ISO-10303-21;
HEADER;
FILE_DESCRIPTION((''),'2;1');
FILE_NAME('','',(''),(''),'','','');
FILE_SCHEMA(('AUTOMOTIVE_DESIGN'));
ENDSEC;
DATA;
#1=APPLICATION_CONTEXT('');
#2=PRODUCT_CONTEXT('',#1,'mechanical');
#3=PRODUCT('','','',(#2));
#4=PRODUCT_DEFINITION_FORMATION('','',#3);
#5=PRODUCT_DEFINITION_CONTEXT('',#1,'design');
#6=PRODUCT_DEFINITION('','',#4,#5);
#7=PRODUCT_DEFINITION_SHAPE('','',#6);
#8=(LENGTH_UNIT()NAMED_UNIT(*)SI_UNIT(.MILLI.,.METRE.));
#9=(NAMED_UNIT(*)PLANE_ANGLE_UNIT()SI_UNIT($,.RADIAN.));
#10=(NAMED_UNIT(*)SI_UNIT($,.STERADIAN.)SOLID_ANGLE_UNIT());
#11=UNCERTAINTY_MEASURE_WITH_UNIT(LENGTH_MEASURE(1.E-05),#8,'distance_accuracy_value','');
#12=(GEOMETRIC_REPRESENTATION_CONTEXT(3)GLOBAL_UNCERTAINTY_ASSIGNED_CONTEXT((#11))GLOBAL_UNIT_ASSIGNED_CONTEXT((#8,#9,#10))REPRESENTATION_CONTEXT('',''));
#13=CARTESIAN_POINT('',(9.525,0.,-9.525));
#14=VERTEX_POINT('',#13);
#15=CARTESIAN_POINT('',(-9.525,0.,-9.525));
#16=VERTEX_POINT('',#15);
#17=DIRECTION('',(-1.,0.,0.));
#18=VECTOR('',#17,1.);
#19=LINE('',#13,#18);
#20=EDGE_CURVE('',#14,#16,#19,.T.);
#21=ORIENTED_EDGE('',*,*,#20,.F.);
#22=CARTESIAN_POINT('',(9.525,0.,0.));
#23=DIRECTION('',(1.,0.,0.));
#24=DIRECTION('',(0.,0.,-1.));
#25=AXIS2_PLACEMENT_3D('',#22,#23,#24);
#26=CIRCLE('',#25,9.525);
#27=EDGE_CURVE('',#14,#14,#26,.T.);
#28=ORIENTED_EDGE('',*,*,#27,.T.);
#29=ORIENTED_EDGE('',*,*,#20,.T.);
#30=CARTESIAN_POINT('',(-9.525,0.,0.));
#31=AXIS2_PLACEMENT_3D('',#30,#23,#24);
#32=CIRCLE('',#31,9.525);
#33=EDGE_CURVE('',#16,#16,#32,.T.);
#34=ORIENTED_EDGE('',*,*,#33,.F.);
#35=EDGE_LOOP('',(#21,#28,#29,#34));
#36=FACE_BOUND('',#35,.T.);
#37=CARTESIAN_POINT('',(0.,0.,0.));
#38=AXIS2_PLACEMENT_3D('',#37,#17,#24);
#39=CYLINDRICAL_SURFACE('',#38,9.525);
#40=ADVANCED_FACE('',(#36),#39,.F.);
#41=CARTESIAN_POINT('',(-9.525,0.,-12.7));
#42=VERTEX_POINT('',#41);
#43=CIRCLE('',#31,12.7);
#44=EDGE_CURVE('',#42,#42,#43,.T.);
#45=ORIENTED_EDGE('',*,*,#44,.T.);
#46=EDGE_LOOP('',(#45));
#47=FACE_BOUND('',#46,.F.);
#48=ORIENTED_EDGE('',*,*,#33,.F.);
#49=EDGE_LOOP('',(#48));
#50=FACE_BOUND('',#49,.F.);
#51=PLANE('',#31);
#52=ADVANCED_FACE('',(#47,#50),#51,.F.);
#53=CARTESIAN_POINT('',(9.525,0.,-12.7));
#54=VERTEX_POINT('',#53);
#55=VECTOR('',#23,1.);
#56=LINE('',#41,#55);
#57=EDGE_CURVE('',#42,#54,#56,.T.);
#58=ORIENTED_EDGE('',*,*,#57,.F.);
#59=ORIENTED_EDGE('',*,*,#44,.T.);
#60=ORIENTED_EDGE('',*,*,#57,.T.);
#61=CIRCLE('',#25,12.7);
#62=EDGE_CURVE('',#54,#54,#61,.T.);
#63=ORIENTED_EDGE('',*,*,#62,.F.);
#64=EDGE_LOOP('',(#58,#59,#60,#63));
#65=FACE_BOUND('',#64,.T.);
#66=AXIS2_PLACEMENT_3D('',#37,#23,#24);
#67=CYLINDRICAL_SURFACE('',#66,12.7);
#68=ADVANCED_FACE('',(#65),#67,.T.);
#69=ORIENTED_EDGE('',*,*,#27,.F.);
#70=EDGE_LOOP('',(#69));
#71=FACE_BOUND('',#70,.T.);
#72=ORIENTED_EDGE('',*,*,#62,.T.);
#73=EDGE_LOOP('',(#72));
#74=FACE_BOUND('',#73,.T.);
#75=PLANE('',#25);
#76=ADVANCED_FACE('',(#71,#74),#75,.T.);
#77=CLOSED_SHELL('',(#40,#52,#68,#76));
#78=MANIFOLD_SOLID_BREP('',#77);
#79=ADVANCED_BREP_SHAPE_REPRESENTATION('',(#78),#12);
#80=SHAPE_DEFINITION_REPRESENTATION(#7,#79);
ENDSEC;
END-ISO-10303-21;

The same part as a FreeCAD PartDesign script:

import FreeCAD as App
import Part
import Sketcher
Q = App.Units.Quantity

doc = App.newDocument("Part")
body = doc.addObject("PartDesign::Body", "Body")

# Sketch on YZ plane
sketch1 = body.newObject("Sketcher::SketchObject", "Sketch")
sketch1.AttachmentSupport = (doc.getObject("YZ_Plane"), [""])
sketch1.MapMode = "FlatFace"
sketch1.addGeometry([
    Part.Circle(App.Vector(0, 0, 0), App.Vector(0, 0, 1), 13),
    Part.Circle(App.Vector(0, 0, 0), App.Vector(0, 0, 1), 10),
], False)
sketch1.addConstraint([
    Sketcher.Constraint("Coincident", 0, 3, -1, 1),
    Sketcher.Constraint("Coincident", 1, 3, -1, 1),
    Sketcher.Constraint("Diameter", 0, Q("1 in")),
    Sketcher.Constraint("Diameter", 1, Q("0.75 in")),
])
pad1 = body.newObject("PartDesign::Pad", "Pad")
pad1.Profile = sketch1
pad1.Length = Q("0.75 in")
pad1.Midplane = True

doc.recompute()
